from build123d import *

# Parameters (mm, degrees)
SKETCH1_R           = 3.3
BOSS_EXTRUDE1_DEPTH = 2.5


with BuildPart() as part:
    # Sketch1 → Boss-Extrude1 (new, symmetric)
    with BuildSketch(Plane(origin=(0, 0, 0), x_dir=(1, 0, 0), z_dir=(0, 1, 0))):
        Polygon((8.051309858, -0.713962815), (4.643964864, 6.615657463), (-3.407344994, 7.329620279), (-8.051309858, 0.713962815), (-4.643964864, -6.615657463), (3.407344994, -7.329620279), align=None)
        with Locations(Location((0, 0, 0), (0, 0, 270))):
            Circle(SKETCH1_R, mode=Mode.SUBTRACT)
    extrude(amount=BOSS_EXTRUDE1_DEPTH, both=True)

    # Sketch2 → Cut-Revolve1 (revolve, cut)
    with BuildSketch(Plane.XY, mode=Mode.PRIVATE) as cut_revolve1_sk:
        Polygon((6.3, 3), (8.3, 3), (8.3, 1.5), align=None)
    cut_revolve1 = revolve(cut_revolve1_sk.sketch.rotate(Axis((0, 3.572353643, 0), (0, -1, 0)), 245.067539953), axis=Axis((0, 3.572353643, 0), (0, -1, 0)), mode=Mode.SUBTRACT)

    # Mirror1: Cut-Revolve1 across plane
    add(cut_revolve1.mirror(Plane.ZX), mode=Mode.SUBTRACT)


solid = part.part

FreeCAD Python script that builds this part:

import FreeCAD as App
import Part
import Sketcher

V = App.Vector
Q = App.Units.Quantity

doc = App.newDocument("Part")
body = doc.addObject("PartDesign::Body", "Body")

# Sketch on XZ plane
sketch1 = body.newObject("Sketcher::SketchObject", "Sketch")
sketch1.AttachmentSupport = (doc.getObject("XZ_Plane"), [""])
sketch1.MapMode = "FlatFace"
sketch1.addGeometry(Part.LineSegment(V(8.1, 0.7, 0), V(4.6, -6.6, 0)), False)
sketch1.addGeometry(Part.LineSegment(V(4.6, -6.6, 0), V(-3.4, -7.3, 0)), False)
sketch1.addGeometry(Part.LineSegment(V(-3.4, -7.3, 0), V(-8.1, -0.7, 0)), False)
sketch1.addGeometry(Part.LineSegment(V(-8.1, -0.7, 0), V(-4.6, 6.6, 0)), False)
sketch1.addGeometry(Part.LineSegment(V(-4.6, 6.6, 0), V(3.4, 7.3, 0)), False)
sketch1.addGeometry(Part.LineSegment(V(3.4, 7.3, 0), V(8.1, 0.7, 0)), False)
sketch1.addGeometry(Part.Circle(V(0, 0, 0), V(0, 0, 1), 3.3), False)
sketch1.addConstraint(Sketcher.Constraint("Coincident", 0, 2, 1, 1))
sketch1.addConstraint(Sketcher.Constraint("Coincident", 1, 2, 2, 1))
sketch1.addConstraint(Sketcher.Constraint("Coincident", 2, 2, 3, 1))
sketch1.addConstraint(Sketcher.Constraint("Coincident", 3, 2, 4, 1))
sketch1.addConstraint(Sketcher.Constraint("Coincident", 4, 2, 5, 1))
sketch1.addConstraint(Sketcher.Constraint("Coincident", 5, 2, 0, 1))
sketch1.addConstraint(Sketcher.Constraint("Coincident", 6, 3, -1, 1))
sketch1.addConstraint(Sketcher.Constraint("Symmetric", 0, 2, 3, 2, -1, 1))
sketch1.addConstraint(Sketcher.Constraint("Symmetric", 1, 2, 4, 2, -1, 1))
sketch1.addConstraint(Sketcher.Constraint("Symmetric", 2, 2, 5, 2, -1, 1))
sketch1.addConstraint(Sketcher.Constraint("Equal", 0, 1))
sketch1.addConstraint(Sketcher.Constraint("Equal", 1, 2))
sketch1.addConstraint(Sketcher.Constraint("Diameter", 6, Q("6.6 mm")))
sketch1.addConstraint(Sketcher.Constraint("DistanceY", 1, 2, -1, 1, Q("7.32962 mm")))
sketch1.addConstraint(Sketcher.Constraint("DistanceX", 2, 2, -1, 1, Q("8.05131 mm")))
sketch1.addConstraint(Sketcher.Constraint("DistanceX", 1, 2, 0, 2, Q("8.05131 mm")))
sketch1.addConstraint(Sketcher.Constraint("DistanceY", 2, 2, 3, 2, Q("7.32962 mm")))
pad1 = body.newObject("PartDesign::Pad", "Pad")
pad1.Profile = sketch1
pad1.Length = 5
pad1.Midplane = True

# Sketch on XY plane
sketch2 = body.newObject("Sketcher::SketchObject", "Sketch001")
sketch2.AttachmentSupport = (doc.getObject("XY_Plane"), [""])
sketch2.MapMode = "FlatFace"
sketch2.addGeometry(Part.LineSegment(V(8.3, 3, 0), V(6.3, 3, 0)), False)
sketch2.addGeometry(Part.LineSegment(V(6.3, 3, 0), V(8.3, 1.5, 0)), False)
sketch2.addGeometry(Part.LineSegment(V(8.3, 1.5, 0), V(8.3, 3, 0)), False)
sketch2.addConstraint(Sketcher.Constraint("Coincident", 0, 2, 1, 1))
sketch2.addConstraint(Sketcher.Constraint("Coincident", 1, 2, 2, 1))
sketch2.addConstraint(Sketcher.Constraint("Coincident", 2, 2, 0, 1))
sketch2.addConstraint(Sketcher.Constraint("Horizontal", 0))
sketch2.addConstraint(Sketcher.Constraint("Vertical", 2))
sketch2.addConstraint(Sketcher.Constraint("DistanceX", 0, 2, 0, 1, Q("2 mm")))
sketch2.addConstraint(Sketcher.Constraint("DistanceY", 2, 1, 2, 2, Q("1.5 mm")))
sketch2.addConstraint(Sketcher.Constraint("DistanceY", -1, 1, 0, 2, Q("3 mm")))
sketch2.addConstraint(Sketcher.Constraint("DistanceX", -1, 1, 0, 2, Q("6.3 mm")))
groove = body.newObject("PartDesign::Groove", "Groove")
groove.Profile = sketch2
groove.ReferenceAxis = (sketch2, ["V_Axis"])
groove.Angle = 360
doc.recompute()

mirrored = body.newObject("PartDesign::Mirrored", "Mirrored")
mirrored.Originals = [groove]
mirrored.MirrorPlane = (doc.getObject("XZ_Plane"), [""])
body.Tip = mirrored

doc.recompute()
